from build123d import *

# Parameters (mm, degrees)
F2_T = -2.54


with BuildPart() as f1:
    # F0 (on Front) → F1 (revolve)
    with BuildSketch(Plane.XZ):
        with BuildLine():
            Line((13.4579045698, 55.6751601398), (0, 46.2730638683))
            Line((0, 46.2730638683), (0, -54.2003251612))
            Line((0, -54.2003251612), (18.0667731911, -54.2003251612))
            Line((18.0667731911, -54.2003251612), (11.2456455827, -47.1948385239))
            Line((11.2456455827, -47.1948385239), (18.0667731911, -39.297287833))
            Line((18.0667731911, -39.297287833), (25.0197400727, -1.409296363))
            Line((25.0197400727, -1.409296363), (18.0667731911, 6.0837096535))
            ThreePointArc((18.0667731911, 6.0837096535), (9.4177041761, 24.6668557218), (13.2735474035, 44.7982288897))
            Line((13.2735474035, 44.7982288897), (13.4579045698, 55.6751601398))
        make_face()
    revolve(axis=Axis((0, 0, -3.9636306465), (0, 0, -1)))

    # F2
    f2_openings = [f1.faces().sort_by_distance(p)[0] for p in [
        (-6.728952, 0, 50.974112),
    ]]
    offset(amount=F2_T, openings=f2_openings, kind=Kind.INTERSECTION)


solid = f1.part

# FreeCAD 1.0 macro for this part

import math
import FreeCAD as App
import Part
import Sketcher
Q = App.Units.Quantity


def faces_at(feature, points):
    """Names of the faces that lie closest to the given points."""
    faces = feature.Shape.Faces
    near = lambda p: min(range(len(faces)), key=lambda i: faces[i].distToShape(Part.Vertex(*p))[0])
    return sorted({f"Face{near(p) + 1}" for p in points})

doc = App.newDocument("Part")
body = doc.addObject("PartDesign::Body", "Body")

# Sketch on XZ plane
sketch1 = doc.addObject("Sketcher::SketchObject", "Sketch")
body.addObject(sketch1)
sketch1.AttachmentSupport = (doc.XZ_Plane, [""])
sketch1.MapMode = "FlatFace"
sketch1.addGeometry([
    Part.LineSegment(App.Vector(13.457905, 55.67516, 0), App.Vector(0, 46.273064, 0)),  # 0
    Part.LineSegment(App.Vector(0, 46.273064, 0), App.Vector(0, -54.200325, 0)),  # 1
    Part.LineSegment(App.Vector(0, -54.200325, 0), App.Vector(18.066773, -54.200325, 0)),  # 2
    Part.LineSegment(App.Vector(18.066773, -54.200325, 0), App.Vector(11.245646, -47.194839, 0)),  # 3
    Part.LineSegment(App.Vector(11.245646, -47.194839, 0), App.Vector(18.066773, -39.297288, 0)),  # 4
    Part.LineSegment(App.Vector(18.066773, -39.297288, 0), App.Vector(25.01974, -1.409296, 0)),  # 5
    Part.LineSegment(App.Vector(25.01974, -1.409296, 0), App.Vector(18.066773, 6.08371, 0)),  # 6
    Part.ArcOfCircle(Part.Circle(App.Vector(42.508437, 28.763803, 0), App.Vector(0, 0, 1), 33.343389), math.radians(151.256604), math.radians(222.859088)),  # 7
    Part.LineSegment(App.Vector(13.273547, 44.798229, 0), App.Vector(13.457905, 55.67516, 0)),  # 8
], False)
sketch1.addConstraint([
    Sketcher.Constraint("Coincident", 0, 2, 1, 1),
    Sketcher.Constraint("Coincident", 1, 2, 2, 1),
    Sketcher.Constraint("Coincident", 2, 2, 3, 1),
    Sketcher.Constraint("Coincident", 3, 2, 4, 1),
    Sketcher.Constraint("Coincident", 4, 2, 5, 1),
    Sketcher.Constraint("Coincident", 5, 2, 6, 1),
    Sketcher.Constraint("Tangent", 6, 2, 7, 2),
    Sketcher.Constraint("Coincident", 7, 1, 8, 1),
    Sketcher.Constraint("Coincident", 8, 2, 0, 1),
    Sketcher.Constraint("Vertical", 1),
    Sketcher.Constraint("Horizontal", 2),
    Sketcher.Constraint("PointOnObject", 0, 2, -2),
    Sketcher.Constraint("Vertical", 2, 2, 4, 2),
    Sketcher.Constraint("Vertical", 4, 2, 6, 2),
    Sketcher.Constraint("Radius", 7, Q("33.343389 mm")),
    Sketcher.Constraint("Distance", 0, Q("16.4169 mm")),
    Sketcher.Constraint("DistanceY", 1, 2, 1, 1, Q("100.473389 mm")),
    Sketcher.Constraint("DistanceY", 5, 2, 7, 3, Q("30.1731 mm")),
    Sketcher.Constraint("Distance", 3, Q("9.777762 mm")),
    Sketcher.Constraint("Distance", 5, Q("38.520691 mm")),
    Sketcher.Constraint("Distance", 6, Q("10.221981 mm")),
    Sketcher.Constraint("DistanceX", 2, 1, 2, 2, Q("18.066773 mm")),
    Sketcher.Constraint("DistanceY", 3, 2, -1, 1, Q("47.194839 mm")),
    Sketcher.Constraint("DistanceY", -1, 1, 6, 2, Q("6.08371 mm")),
    Sketcher.Constraint("DistanceY", -1, 1, 7, 1, Q("44.798229 mm")),
    Sketcher.Constraint("DistanceY", -1, 1, 8, 2, Q("55.67516 mm")),
    Sketcher.Constraint("DistanceY", 7, 3, 0, 2, Q("17.509261 mm")),
])
revolution = doc.addObject("PartDesign::Revolution", "Revolution")
body.addObject(revolution)
revolution.Profile = sketch1
revolution.ReferenceAxis = (sketch1, ["V_Axis"])
revolution.Angle = 360
doc.recompute()

thickness = doc.addObject("PartDesign::Thickness", "Thickness")
body.addObject(thickness)
thickness.Base = (revolution, faces_at(revolution, [(-6.729, 0, 50.974)]))
thickness.Value = Q("0.1 in")
thickness.Reversed = True
thickness.Join = "Intersection"

doc.recompute()
